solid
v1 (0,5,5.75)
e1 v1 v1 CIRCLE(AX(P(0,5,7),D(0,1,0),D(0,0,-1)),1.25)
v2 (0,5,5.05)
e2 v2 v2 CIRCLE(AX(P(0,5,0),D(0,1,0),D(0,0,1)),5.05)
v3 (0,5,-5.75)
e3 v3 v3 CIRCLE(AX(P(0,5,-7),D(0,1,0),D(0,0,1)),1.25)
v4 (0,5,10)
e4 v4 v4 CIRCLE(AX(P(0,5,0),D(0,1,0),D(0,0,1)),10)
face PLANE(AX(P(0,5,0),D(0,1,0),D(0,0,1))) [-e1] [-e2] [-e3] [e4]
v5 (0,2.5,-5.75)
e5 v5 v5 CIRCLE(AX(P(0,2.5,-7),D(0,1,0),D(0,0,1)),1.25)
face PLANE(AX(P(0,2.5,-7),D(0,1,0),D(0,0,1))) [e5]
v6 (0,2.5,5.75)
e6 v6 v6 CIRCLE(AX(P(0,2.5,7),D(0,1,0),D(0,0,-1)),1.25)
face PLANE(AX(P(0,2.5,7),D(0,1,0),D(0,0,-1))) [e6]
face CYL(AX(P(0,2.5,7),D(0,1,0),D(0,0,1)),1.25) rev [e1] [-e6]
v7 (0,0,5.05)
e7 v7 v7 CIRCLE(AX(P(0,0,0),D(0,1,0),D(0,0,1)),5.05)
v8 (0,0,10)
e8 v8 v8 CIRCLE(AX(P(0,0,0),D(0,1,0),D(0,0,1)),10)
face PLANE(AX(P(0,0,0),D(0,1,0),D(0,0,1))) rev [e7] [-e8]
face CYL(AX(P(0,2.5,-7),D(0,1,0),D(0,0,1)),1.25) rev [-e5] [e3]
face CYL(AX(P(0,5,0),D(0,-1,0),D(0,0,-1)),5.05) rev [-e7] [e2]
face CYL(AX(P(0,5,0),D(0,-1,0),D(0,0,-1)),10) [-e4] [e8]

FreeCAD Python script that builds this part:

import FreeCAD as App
import Part
import Sketcher
from FreeCAD import Vector
Q = App.Units.Quantity

doc = App.newDocument("Part")
body = doc.addObject("PartDesign::Body", "Body")

sketch1 = body.newObject("Sketcher::SketchObject", "Sketch")
sketch1.AttachmentSupport = (doc.getObject("XZ_Plane"), [""])
sketch1.MapMode = "FlatFace"
sketch1.addGeometry([
    Part.Circle(Vector(0, 0, 0), Vector(0, 0, 1), 10),
    Part.Circle(Vector(0, 0, 0), Vector(0, 0, 1), 5.05),
], False)
sketch1.addConstraint([
    Sketcher.Constraint("Coincident", 0, 3, -1, 1),
    Sketcher.Constraint("Coincident", 1, 3, -1, 1),
    Sketcher.Constraint("Diameter", 0, Q("20 mm")),
    Sketcher.Constraint("Diameter", 1, Q("10.1 mm")),
])
pad1 = body.newObject("PartDesign::Pad", "Pad")
pad1.Profile = sketch1
pad1.Length = 5
pad1.Reversed = True

sketch2 = body.newObject("Sketcher::SketchObject", "Sketch001")
sketch2.AttachmentSupport = (doc.getObject("XZ_Plane"), [""])
sketch2.MapMode = "FlatFace"
sketch2.AttachmentOffset = App.Placement(Vector(0, 0, -5), App.Rotation())
sketch2.addGeometry(Part.Circle(Vector(0, -7, 0), Vector(0, 0, 1), 1.25), False)
sketch2.addConstraint([
    Sketcher.Constraint("PointOnObject", 0, 3, -2),
    Sketcher.Constraint("Diameter", 0, Q("2.5 mm")),
    Sketcher.Constraint("DistanceY", 0, 3, -1, 1, Q("7 mm")),
])
pocket1 = body.newObject("PartDesign::Pocket", "Pocket")
pocket1.Profile = sketch2
pocket1.Length = 2.5
pocket1.Reversed = True
doc.recompute()

polarpattern = body.newObject("PartDesign::PolarPattern", "PolarPattern")
polarpattern.Originals = [pocket1]
polarpattern.Axis = (doc.getObject("Y_Axis"), [""])
polarpattern.Angle = 360
polarpattern.Occurrences = 2
body.Tip = polarpattern

doc.recompute()
